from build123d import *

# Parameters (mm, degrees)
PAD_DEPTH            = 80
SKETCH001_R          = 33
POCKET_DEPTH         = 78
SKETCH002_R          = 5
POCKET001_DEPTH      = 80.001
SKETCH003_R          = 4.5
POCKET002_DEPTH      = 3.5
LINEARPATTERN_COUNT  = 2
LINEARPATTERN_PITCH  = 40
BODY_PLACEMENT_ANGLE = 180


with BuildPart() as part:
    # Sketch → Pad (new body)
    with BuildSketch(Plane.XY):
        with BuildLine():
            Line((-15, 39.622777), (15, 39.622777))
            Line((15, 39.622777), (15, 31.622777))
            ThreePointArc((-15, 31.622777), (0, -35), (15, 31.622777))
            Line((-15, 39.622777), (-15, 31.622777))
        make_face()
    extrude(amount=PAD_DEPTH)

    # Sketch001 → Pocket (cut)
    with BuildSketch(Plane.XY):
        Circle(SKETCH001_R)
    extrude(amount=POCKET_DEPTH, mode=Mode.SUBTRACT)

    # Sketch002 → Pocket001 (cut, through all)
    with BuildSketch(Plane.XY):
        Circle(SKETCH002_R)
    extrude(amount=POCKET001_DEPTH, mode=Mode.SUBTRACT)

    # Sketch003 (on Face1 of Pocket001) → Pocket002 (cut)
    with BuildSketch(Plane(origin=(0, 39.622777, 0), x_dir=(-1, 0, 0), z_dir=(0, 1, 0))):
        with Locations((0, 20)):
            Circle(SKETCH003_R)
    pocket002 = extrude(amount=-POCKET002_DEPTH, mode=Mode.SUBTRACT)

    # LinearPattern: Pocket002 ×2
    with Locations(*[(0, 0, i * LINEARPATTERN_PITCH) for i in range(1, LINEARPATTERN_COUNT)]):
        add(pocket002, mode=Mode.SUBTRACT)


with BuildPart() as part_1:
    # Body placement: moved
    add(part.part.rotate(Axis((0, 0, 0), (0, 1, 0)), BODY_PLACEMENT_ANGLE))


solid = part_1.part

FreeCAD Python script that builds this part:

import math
import FreeCAD as App
import Part
import Sketcher
from FreeCAD import Vector

doc = App.newDocument("Part")
params = doc.addObject("Spreadsheet::Sheet", "Params")
for row, (alias, value) in enumerate([
    ("sketch1_radius", "35 mm"),
    ("sketch1_width", "30 mm"),
    ("sketch1_height", "8 mm"),
    ("pad1_length", "80 mm"),
    ("sketch2_diameter", "66 mm"),
    ("pocket1_length", "78 mm"),
    ("sketch3_diameter", "10 mm"),
    ("sketch4_diameter", "9 mm"),
    ("pocket3_length", "3.5 mm"),
    ("linearpattern_pitch", "40 mm"),
], start=1):
    params.set(f"A{row}", alias)
    params.set(f"B{row}", "=" + value)
    params.setAlias(f"B{row}", alias)

body = doc.addObject("PartDesign::Body", "Body")

sketch1 = doc.addObject("Sketcher::SketchObject", "Sketch")
body.addObject(sketch1)
sketch1.AttachmentSupport = (doc.XY_Plane, [""])
sketch1.MapMode = "FlatFace"
sketch1.addGeometry(Part.LineSegment(Vector(15, 40, 0), Vector(-15, 40, 0)), False)
sketch1.addGeometry(Part.LineSegment(Vector(-15, 40, 0), Vector(-15, 32, 0)), False)
sketch1.addGeometry(Part.ArcOfCircle(Part.Circle(Vector(0, 0, 0), Vector(0, 0, 1), 35), math.radians(115), math.radians(425)), False)
sketch1.addGeometry(Part.LineSegment(Vector(15, 32, 0), Vector(15, 40, 0)), False)
sketch1.addConstraint(Sketcher.Constraint("Coincident", 0, 2, 1, 1))
sketch1.addConstraint(Sketcher.Constraint("Coincident", 1, 2, 2, 1))
sketch1.addConstraint(Sketcher.Constraint("Coincident", 2, 2, 3, 1))
sketch1.addConstraint(Sketcher.Constraint("Coincident", 3, 2, 0, 1))
sketch1.addConstraint(Sketcher.Constraint("Horizontal", 0))
sketch1.addConstraint(Sketcher.Constraint("Vertical", 1))
sketch1.addConstraint(Sketcher.Constraint("Vertical", 3))
sketch1.addConstraint(Sketcher.Constraint("Coincident", 2, 3, -1, 1))
sketch1.addConstraint(Sketcher.Constraint("Horizontal", 1, 2, 2, 2))
sketch1.addConstraint(Sketcher.Constraint("Radius", 2, 35.0))
sketch1.addConstraint(Sketcher.Constraint("DistanceX", 0, 2, 0, 1, 30.0))
sketch1.addConstraint(Sketcher.Constraint("DistanceY", 1, 2, 1, 1, 8.0))
sketch1.setExpression("Constraints[9]", "Params.sketch1_radius")
sketch1.setExpression("Constraints[10]", "Params.sketch1_width")
sketch1.setExpression("Constraints[11]", "Params.sketch1_height")
pad1 = doc.addObject("PartDesign::Pad", "Pad")
body.addObject(pad1)
pad1.Profile = sketch1
pad1.setExpression("Length", "Params.pad1_length")

sketch2 = doc.addObject("Sketcher::SketchObject", "Sketch001")
body.addObject(sketch2)
sketch2.AttachmentSupport = (doc.XY_Plane, [""])
sketch2.MapMode = "FlatFace"
sketch2.addGeometry(Part.Circle(Vector(0, 0, 0), Vector(0, 0, 1), 33), False)
sketch2.addConstraint(Sketcher.Constraint("Coincident", 0, 3, -1, 1))
sketch2.addConstraint(Sketcher.Constraint("Diameter", 0, 66.0))
sketch2.setExpression("Constraints[1]", "Params.sketch2_diameter")
pocket1 = doc.addObject("PartDesign::Pocket", "Pocket")
body.addObject(pocket1)
pocket1.Profile = sketch2
pocket1.setExpression("Length", "Params.pocket1_length")
pocket1.Reversed = True

sketch3 = doc.addObject("Sketcher::SketchObject", "Sketch002")
body.addObject(sketch3)
sketch3.AttachmentSupport = (doc.XY_Plane, [""])
sketch3.MapMode = "FlatFace"
sketch3.addGeometry(Part.Circle(Vector(0, 0, 0), Vector(0, 0, 1), 5), False)
sketch3.addConstraint(Sketcher.Constraint("Coincident", 0, 3, -1, 1))
sketch3.addConstraint(Sketcher.Constraint("Diameter", 0, 10.0))
sketch3.setExpression("Constraints[1]", "Params.sketch3_diameter")
pocket2 = doc.addObject("PartDesign::Pocket", "Pocket001")
body.addObject(pocket2)
pocket2.Profile = sketch3
pocket2.Type = "ThroughAll"
pocket2.Reversed = True

sketch4 = doc.addObject("Sketcher::SketchObject", "Sketch003")
body.addObject(sketch4)
sketch4.AttachmentSupport = (doc.XZ_Plane, [""])
sketch4.MapMode = "FlatFace"
sketch4.AttachmentOffset = App.Placement(Vector(0, 0, -39.622777), App.Rotation())
sketch4.addGeometry(Part.Circle(Vector(0, 20, 0), Vector(0, 0, 1), 4.5), False)
sketch4.addConstraint(Sketcher.Constraint("PointOnObject", 0, 3, -2))
sketch4.addConstraint(Sketcher.Constraint("Diameter", 0, 9.0))
sketch4.addConstraint(Sketcher.Constraint("DistanceY", -1, 1, 0, 3, 20.0))
sketch4.setExpression("Constraints[1]", "Params.sketch4_diameter")
pocket3 = doc.addObject("PartDesign::Pocket", "Pocket002")
body.addObject(pocket3)
pocket3.Profile = sketch4
pocket3.setExpression("Length", "Params.pocket3_length")
pocket3.Reversed = True
doc.recompute()

linearpattern = doc.addObject("PartDesign::LinearPattern", "LinearPattern")
body.addObject(linearpattern)
linearpattern.Originals = [pocket3]
linearpattern.Direction = (doc.Z_Axis, [""])
linearpattern.Mode = "offset"
linearpattern.setExpression("Offset", "Params.linearpattern_pitch")
linearpattern.Occurrences = 2
body.Tip = linearpattern
body2 = doc.addObject("PartDesign::Body", "Body001")
doc.recompute()

body.Placement = App.Placement(Vector(0, 0, 0), App.Rotation(Vector(0, 1, 0), 180))
boolean = doc.addObject("PartDesign::Boolean", "Boolean")
body2.addObject(boolean)
boolean.Type = "Fuse"
boolean.addObjects([body])

doc.recompute()
